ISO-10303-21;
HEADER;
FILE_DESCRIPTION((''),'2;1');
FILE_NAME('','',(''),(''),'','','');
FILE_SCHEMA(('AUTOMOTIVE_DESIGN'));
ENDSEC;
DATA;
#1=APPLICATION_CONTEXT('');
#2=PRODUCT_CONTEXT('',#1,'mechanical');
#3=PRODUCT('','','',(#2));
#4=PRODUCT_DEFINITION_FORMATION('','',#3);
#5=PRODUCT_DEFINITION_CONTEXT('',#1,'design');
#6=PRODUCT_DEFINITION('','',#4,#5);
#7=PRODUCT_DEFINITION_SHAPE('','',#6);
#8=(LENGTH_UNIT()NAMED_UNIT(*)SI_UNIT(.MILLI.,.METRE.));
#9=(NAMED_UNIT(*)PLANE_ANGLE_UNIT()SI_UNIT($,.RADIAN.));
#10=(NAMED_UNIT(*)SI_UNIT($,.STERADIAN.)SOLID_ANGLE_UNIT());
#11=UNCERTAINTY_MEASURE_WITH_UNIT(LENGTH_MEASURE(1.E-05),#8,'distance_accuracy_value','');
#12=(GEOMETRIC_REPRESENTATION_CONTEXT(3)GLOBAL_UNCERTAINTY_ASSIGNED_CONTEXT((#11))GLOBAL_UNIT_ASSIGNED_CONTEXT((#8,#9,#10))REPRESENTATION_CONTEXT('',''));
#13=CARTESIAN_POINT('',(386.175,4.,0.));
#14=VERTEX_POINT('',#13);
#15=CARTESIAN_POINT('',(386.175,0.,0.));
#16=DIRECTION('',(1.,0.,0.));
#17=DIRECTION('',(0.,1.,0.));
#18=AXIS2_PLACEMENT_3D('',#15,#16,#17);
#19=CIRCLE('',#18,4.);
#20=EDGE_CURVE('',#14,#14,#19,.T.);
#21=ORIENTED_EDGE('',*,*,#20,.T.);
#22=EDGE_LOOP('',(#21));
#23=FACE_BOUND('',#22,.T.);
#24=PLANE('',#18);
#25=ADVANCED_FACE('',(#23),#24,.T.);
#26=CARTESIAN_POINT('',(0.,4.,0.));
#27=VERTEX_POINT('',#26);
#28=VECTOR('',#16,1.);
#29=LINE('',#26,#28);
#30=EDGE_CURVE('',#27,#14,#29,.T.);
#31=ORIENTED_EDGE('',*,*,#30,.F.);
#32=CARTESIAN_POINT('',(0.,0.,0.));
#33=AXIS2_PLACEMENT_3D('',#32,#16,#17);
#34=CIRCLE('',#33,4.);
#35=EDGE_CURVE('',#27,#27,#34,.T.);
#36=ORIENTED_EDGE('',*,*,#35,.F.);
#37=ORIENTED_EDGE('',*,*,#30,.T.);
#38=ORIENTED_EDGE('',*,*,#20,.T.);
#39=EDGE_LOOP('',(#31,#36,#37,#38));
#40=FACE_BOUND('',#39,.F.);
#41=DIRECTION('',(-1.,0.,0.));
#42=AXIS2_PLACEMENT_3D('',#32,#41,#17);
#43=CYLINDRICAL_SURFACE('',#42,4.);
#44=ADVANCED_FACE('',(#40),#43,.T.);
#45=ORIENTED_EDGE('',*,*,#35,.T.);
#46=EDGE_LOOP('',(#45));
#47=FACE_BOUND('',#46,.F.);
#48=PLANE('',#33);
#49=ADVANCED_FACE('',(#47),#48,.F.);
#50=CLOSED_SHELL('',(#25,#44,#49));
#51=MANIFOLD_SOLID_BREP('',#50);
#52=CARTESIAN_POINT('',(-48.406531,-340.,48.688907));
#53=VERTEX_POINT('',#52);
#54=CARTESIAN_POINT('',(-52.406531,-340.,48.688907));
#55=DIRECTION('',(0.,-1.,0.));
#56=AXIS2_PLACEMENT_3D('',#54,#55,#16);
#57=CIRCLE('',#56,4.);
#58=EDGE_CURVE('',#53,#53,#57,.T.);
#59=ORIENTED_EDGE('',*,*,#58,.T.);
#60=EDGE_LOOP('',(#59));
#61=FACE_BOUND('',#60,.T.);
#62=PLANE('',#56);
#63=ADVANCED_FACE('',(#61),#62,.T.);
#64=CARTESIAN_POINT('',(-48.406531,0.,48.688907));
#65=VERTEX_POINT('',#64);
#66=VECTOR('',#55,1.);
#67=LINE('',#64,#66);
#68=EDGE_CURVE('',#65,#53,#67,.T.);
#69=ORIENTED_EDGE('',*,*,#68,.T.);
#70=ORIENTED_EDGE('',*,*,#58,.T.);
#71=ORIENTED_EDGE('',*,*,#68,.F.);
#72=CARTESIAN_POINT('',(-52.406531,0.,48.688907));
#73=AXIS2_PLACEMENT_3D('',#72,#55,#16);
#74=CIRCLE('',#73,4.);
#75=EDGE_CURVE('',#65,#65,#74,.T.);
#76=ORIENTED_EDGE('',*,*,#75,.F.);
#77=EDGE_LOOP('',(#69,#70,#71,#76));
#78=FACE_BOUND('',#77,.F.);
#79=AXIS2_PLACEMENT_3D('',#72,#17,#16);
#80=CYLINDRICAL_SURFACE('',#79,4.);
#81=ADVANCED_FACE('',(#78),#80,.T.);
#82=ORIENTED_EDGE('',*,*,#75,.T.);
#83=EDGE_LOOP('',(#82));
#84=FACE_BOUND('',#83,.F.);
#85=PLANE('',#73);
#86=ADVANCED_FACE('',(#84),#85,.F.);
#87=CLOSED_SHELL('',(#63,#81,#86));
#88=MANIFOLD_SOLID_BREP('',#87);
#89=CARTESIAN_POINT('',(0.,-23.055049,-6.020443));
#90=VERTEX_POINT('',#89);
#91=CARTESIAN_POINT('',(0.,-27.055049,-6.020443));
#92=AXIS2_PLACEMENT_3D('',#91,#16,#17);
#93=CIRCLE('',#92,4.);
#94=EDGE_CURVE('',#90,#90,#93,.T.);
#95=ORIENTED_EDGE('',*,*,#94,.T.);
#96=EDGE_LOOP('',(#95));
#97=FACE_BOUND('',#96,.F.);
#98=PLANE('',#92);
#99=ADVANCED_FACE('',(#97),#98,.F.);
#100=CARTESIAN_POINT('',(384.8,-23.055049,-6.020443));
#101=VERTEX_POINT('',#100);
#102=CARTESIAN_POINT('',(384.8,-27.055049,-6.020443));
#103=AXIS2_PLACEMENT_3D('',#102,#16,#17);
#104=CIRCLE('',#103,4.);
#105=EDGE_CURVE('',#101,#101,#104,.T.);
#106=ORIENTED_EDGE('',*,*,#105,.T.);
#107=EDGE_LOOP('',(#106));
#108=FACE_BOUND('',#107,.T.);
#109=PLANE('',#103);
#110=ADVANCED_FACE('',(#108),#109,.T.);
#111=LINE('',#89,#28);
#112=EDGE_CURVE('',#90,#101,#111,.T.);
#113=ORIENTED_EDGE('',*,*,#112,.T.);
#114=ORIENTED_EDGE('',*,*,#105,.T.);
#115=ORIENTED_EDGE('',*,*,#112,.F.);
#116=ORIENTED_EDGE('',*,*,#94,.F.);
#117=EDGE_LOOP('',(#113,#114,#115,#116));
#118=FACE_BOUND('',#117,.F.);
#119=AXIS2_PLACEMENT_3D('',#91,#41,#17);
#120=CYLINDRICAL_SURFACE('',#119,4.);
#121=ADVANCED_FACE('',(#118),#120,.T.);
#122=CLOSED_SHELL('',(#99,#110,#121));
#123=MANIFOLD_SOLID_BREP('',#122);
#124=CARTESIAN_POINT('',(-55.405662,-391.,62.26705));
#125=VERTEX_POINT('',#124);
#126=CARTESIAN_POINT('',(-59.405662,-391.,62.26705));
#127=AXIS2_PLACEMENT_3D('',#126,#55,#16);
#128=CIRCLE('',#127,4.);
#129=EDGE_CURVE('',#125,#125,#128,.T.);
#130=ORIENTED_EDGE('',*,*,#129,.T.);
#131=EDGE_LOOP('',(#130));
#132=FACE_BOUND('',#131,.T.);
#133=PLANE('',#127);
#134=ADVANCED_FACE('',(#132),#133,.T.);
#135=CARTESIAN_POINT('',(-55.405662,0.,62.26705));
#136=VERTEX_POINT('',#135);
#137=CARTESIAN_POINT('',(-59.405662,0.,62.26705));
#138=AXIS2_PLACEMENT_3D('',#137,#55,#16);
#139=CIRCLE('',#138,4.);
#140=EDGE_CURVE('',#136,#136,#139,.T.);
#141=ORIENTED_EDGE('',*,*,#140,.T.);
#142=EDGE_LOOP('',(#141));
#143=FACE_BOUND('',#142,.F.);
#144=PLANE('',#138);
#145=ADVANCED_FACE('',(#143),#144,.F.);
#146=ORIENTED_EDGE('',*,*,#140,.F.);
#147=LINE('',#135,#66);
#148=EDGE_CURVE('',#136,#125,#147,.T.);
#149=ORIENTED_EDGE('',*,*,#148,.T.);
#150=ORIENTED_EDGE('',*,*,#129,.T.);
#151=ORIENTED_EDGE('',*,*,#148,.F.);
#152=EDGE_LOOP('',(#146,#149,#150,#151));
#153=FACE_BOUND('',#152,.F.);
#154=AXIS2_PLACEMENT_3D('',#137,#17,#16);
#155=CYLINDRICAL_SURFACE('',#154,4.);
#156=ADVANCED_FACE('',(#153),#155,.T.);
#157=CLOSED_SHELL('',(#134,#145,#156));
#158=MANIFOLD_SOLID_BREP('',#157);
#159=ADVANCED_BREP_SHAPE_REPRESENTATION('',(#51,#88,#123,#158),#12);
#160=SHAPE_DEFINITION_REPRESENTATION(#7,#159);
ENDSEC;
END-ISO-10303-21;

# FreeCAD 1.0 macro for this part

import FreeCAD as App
import Part
import Sketcher

V = App.Vector
Q = App.Units.Quantity

doc = App.newDocument("Part")
body = doc.addObject("PartDesign::Body", "Body")

sketch1 = doc.addObject("Sketcher::SketchObject", "Sketch")
body.addObject(sketch1)
sketch1.AttachmentSupport = (doc.YZ_Plane, [""])
sketch1.MapMode = "FlatFace"
sketch1.addGeometry(Part.Circle(V(0, 0, 0), V(0, 0, 1), 4), False)
sketch1.addConstraint(Sketcher.Constraint("Coincident", 0, 3, -1, 1))
sketch1.addConstraint(Sketcher.Constraint("Diameter", 0, Q("8 mm")))
pad1 = doc.addObject("PartDesign::Pad", "Pad")
body.addObject(pad1)
pad1.Profile = sketch1
pad1.Length = 386.175
body2 = doc.addObject("PartDesign::Body", "Body001")

sketch2 = doc.addObject("Sketcher::SketchObject", "Sketch001")
body2.addObject(sketch2)
sketch2.AttachmentSupport = (doc.getObject("XZ_Plane001"), [""])
sketch2.MapMode = "FlatFace"
sketch2.addGeometry(Part.Circle(V(-59.405662, 62.26705, 0), V(0, 0, 1), 4), False)
sketch2.addConstraint(Sketcher.Constraint("Diameter", 0, Q("8 mm")))
sketch2.addConstraint(Sketcher.Constraint("DistanceY", -1, 1, 0, 3, Q("62.26705 mm")))
sketch2.addConstraint(Sketcher.Constraint("DistanceX", 0, 3, -1, 1, Q("59.405662 mm")))
pad2 = doc.addObject("PartDesign::Pad", "Pad001")
body2.addObject(pad2)
pad2.Profile = sketch2
pad2.Length = 391
body3 = doc.addObject("PartDesign::Body", "Body002")

sketch3 = doc.addObject("Sketcher::SketchObject", "Sketch002")
body3.addObject(sketch3)
sketch3.AttachmentSupport = (doc.getObject("XZ_Plane002"), [""])
sketch3.MapMode = "FlatFace"
sketch3.addGeometry(Part.Circle(V(-52.406531, 48.688907, 0), V(0, 0, 1), 4), False)
sketch3.addConstraint(Sketcher.Constraint("Diameter", 0, Q("8 mm")))
sketch3.addConstraint(Sketcher.Constraint("DistanceX", 0, 3, -1, 1, Q("52.406531 mm")))
sketch3.addConstraint(Sketcher.Constraint("DistanceY", -1, 1, 0, 3, Q("48.688907 mm")))
pad3 = doc.addObject("PartDesign::Pad", "Pad002")
body3.addObject(pad3)
pad3.Profile = sketch3
pad3.Length = 340
body4 = doc.addObject("PartDesign::Body", "Body003")

sketch4 = doc.addObject("Sketcher::SketchObject", "Sketch003")
body4.addObject(sketch4)
sketch4.AttachmentSupport = (doc.getObject("YZ_Plane003"), [""])
sketch4.MapMode = "FlatFace"
sketch4.addGeometry(Part.Circle(V(-27.055049, -6.020443, 0), V(0, 0, 1), 4), False)
sketch4.addConstraint(Sketcher.Constraint("Diameter", 0, Q("8 mm")))
sketch4.addConstraint(Sketcher.Constraint("DistanceX", 0, 3, -1, 1, Q("27.055049 mm")))
sketch4.addConstraint(Sketcher.Constraint("DistanceY", 0, 3, -1, 1, Q("6.020443 mm")))
pad4 = doc.addObject("PartDesign::Pad", "Pad003")
body4.addObject(pad4)
pad4.Profile = sketch4
pad4.Length = 384.8

doc.recompute()
